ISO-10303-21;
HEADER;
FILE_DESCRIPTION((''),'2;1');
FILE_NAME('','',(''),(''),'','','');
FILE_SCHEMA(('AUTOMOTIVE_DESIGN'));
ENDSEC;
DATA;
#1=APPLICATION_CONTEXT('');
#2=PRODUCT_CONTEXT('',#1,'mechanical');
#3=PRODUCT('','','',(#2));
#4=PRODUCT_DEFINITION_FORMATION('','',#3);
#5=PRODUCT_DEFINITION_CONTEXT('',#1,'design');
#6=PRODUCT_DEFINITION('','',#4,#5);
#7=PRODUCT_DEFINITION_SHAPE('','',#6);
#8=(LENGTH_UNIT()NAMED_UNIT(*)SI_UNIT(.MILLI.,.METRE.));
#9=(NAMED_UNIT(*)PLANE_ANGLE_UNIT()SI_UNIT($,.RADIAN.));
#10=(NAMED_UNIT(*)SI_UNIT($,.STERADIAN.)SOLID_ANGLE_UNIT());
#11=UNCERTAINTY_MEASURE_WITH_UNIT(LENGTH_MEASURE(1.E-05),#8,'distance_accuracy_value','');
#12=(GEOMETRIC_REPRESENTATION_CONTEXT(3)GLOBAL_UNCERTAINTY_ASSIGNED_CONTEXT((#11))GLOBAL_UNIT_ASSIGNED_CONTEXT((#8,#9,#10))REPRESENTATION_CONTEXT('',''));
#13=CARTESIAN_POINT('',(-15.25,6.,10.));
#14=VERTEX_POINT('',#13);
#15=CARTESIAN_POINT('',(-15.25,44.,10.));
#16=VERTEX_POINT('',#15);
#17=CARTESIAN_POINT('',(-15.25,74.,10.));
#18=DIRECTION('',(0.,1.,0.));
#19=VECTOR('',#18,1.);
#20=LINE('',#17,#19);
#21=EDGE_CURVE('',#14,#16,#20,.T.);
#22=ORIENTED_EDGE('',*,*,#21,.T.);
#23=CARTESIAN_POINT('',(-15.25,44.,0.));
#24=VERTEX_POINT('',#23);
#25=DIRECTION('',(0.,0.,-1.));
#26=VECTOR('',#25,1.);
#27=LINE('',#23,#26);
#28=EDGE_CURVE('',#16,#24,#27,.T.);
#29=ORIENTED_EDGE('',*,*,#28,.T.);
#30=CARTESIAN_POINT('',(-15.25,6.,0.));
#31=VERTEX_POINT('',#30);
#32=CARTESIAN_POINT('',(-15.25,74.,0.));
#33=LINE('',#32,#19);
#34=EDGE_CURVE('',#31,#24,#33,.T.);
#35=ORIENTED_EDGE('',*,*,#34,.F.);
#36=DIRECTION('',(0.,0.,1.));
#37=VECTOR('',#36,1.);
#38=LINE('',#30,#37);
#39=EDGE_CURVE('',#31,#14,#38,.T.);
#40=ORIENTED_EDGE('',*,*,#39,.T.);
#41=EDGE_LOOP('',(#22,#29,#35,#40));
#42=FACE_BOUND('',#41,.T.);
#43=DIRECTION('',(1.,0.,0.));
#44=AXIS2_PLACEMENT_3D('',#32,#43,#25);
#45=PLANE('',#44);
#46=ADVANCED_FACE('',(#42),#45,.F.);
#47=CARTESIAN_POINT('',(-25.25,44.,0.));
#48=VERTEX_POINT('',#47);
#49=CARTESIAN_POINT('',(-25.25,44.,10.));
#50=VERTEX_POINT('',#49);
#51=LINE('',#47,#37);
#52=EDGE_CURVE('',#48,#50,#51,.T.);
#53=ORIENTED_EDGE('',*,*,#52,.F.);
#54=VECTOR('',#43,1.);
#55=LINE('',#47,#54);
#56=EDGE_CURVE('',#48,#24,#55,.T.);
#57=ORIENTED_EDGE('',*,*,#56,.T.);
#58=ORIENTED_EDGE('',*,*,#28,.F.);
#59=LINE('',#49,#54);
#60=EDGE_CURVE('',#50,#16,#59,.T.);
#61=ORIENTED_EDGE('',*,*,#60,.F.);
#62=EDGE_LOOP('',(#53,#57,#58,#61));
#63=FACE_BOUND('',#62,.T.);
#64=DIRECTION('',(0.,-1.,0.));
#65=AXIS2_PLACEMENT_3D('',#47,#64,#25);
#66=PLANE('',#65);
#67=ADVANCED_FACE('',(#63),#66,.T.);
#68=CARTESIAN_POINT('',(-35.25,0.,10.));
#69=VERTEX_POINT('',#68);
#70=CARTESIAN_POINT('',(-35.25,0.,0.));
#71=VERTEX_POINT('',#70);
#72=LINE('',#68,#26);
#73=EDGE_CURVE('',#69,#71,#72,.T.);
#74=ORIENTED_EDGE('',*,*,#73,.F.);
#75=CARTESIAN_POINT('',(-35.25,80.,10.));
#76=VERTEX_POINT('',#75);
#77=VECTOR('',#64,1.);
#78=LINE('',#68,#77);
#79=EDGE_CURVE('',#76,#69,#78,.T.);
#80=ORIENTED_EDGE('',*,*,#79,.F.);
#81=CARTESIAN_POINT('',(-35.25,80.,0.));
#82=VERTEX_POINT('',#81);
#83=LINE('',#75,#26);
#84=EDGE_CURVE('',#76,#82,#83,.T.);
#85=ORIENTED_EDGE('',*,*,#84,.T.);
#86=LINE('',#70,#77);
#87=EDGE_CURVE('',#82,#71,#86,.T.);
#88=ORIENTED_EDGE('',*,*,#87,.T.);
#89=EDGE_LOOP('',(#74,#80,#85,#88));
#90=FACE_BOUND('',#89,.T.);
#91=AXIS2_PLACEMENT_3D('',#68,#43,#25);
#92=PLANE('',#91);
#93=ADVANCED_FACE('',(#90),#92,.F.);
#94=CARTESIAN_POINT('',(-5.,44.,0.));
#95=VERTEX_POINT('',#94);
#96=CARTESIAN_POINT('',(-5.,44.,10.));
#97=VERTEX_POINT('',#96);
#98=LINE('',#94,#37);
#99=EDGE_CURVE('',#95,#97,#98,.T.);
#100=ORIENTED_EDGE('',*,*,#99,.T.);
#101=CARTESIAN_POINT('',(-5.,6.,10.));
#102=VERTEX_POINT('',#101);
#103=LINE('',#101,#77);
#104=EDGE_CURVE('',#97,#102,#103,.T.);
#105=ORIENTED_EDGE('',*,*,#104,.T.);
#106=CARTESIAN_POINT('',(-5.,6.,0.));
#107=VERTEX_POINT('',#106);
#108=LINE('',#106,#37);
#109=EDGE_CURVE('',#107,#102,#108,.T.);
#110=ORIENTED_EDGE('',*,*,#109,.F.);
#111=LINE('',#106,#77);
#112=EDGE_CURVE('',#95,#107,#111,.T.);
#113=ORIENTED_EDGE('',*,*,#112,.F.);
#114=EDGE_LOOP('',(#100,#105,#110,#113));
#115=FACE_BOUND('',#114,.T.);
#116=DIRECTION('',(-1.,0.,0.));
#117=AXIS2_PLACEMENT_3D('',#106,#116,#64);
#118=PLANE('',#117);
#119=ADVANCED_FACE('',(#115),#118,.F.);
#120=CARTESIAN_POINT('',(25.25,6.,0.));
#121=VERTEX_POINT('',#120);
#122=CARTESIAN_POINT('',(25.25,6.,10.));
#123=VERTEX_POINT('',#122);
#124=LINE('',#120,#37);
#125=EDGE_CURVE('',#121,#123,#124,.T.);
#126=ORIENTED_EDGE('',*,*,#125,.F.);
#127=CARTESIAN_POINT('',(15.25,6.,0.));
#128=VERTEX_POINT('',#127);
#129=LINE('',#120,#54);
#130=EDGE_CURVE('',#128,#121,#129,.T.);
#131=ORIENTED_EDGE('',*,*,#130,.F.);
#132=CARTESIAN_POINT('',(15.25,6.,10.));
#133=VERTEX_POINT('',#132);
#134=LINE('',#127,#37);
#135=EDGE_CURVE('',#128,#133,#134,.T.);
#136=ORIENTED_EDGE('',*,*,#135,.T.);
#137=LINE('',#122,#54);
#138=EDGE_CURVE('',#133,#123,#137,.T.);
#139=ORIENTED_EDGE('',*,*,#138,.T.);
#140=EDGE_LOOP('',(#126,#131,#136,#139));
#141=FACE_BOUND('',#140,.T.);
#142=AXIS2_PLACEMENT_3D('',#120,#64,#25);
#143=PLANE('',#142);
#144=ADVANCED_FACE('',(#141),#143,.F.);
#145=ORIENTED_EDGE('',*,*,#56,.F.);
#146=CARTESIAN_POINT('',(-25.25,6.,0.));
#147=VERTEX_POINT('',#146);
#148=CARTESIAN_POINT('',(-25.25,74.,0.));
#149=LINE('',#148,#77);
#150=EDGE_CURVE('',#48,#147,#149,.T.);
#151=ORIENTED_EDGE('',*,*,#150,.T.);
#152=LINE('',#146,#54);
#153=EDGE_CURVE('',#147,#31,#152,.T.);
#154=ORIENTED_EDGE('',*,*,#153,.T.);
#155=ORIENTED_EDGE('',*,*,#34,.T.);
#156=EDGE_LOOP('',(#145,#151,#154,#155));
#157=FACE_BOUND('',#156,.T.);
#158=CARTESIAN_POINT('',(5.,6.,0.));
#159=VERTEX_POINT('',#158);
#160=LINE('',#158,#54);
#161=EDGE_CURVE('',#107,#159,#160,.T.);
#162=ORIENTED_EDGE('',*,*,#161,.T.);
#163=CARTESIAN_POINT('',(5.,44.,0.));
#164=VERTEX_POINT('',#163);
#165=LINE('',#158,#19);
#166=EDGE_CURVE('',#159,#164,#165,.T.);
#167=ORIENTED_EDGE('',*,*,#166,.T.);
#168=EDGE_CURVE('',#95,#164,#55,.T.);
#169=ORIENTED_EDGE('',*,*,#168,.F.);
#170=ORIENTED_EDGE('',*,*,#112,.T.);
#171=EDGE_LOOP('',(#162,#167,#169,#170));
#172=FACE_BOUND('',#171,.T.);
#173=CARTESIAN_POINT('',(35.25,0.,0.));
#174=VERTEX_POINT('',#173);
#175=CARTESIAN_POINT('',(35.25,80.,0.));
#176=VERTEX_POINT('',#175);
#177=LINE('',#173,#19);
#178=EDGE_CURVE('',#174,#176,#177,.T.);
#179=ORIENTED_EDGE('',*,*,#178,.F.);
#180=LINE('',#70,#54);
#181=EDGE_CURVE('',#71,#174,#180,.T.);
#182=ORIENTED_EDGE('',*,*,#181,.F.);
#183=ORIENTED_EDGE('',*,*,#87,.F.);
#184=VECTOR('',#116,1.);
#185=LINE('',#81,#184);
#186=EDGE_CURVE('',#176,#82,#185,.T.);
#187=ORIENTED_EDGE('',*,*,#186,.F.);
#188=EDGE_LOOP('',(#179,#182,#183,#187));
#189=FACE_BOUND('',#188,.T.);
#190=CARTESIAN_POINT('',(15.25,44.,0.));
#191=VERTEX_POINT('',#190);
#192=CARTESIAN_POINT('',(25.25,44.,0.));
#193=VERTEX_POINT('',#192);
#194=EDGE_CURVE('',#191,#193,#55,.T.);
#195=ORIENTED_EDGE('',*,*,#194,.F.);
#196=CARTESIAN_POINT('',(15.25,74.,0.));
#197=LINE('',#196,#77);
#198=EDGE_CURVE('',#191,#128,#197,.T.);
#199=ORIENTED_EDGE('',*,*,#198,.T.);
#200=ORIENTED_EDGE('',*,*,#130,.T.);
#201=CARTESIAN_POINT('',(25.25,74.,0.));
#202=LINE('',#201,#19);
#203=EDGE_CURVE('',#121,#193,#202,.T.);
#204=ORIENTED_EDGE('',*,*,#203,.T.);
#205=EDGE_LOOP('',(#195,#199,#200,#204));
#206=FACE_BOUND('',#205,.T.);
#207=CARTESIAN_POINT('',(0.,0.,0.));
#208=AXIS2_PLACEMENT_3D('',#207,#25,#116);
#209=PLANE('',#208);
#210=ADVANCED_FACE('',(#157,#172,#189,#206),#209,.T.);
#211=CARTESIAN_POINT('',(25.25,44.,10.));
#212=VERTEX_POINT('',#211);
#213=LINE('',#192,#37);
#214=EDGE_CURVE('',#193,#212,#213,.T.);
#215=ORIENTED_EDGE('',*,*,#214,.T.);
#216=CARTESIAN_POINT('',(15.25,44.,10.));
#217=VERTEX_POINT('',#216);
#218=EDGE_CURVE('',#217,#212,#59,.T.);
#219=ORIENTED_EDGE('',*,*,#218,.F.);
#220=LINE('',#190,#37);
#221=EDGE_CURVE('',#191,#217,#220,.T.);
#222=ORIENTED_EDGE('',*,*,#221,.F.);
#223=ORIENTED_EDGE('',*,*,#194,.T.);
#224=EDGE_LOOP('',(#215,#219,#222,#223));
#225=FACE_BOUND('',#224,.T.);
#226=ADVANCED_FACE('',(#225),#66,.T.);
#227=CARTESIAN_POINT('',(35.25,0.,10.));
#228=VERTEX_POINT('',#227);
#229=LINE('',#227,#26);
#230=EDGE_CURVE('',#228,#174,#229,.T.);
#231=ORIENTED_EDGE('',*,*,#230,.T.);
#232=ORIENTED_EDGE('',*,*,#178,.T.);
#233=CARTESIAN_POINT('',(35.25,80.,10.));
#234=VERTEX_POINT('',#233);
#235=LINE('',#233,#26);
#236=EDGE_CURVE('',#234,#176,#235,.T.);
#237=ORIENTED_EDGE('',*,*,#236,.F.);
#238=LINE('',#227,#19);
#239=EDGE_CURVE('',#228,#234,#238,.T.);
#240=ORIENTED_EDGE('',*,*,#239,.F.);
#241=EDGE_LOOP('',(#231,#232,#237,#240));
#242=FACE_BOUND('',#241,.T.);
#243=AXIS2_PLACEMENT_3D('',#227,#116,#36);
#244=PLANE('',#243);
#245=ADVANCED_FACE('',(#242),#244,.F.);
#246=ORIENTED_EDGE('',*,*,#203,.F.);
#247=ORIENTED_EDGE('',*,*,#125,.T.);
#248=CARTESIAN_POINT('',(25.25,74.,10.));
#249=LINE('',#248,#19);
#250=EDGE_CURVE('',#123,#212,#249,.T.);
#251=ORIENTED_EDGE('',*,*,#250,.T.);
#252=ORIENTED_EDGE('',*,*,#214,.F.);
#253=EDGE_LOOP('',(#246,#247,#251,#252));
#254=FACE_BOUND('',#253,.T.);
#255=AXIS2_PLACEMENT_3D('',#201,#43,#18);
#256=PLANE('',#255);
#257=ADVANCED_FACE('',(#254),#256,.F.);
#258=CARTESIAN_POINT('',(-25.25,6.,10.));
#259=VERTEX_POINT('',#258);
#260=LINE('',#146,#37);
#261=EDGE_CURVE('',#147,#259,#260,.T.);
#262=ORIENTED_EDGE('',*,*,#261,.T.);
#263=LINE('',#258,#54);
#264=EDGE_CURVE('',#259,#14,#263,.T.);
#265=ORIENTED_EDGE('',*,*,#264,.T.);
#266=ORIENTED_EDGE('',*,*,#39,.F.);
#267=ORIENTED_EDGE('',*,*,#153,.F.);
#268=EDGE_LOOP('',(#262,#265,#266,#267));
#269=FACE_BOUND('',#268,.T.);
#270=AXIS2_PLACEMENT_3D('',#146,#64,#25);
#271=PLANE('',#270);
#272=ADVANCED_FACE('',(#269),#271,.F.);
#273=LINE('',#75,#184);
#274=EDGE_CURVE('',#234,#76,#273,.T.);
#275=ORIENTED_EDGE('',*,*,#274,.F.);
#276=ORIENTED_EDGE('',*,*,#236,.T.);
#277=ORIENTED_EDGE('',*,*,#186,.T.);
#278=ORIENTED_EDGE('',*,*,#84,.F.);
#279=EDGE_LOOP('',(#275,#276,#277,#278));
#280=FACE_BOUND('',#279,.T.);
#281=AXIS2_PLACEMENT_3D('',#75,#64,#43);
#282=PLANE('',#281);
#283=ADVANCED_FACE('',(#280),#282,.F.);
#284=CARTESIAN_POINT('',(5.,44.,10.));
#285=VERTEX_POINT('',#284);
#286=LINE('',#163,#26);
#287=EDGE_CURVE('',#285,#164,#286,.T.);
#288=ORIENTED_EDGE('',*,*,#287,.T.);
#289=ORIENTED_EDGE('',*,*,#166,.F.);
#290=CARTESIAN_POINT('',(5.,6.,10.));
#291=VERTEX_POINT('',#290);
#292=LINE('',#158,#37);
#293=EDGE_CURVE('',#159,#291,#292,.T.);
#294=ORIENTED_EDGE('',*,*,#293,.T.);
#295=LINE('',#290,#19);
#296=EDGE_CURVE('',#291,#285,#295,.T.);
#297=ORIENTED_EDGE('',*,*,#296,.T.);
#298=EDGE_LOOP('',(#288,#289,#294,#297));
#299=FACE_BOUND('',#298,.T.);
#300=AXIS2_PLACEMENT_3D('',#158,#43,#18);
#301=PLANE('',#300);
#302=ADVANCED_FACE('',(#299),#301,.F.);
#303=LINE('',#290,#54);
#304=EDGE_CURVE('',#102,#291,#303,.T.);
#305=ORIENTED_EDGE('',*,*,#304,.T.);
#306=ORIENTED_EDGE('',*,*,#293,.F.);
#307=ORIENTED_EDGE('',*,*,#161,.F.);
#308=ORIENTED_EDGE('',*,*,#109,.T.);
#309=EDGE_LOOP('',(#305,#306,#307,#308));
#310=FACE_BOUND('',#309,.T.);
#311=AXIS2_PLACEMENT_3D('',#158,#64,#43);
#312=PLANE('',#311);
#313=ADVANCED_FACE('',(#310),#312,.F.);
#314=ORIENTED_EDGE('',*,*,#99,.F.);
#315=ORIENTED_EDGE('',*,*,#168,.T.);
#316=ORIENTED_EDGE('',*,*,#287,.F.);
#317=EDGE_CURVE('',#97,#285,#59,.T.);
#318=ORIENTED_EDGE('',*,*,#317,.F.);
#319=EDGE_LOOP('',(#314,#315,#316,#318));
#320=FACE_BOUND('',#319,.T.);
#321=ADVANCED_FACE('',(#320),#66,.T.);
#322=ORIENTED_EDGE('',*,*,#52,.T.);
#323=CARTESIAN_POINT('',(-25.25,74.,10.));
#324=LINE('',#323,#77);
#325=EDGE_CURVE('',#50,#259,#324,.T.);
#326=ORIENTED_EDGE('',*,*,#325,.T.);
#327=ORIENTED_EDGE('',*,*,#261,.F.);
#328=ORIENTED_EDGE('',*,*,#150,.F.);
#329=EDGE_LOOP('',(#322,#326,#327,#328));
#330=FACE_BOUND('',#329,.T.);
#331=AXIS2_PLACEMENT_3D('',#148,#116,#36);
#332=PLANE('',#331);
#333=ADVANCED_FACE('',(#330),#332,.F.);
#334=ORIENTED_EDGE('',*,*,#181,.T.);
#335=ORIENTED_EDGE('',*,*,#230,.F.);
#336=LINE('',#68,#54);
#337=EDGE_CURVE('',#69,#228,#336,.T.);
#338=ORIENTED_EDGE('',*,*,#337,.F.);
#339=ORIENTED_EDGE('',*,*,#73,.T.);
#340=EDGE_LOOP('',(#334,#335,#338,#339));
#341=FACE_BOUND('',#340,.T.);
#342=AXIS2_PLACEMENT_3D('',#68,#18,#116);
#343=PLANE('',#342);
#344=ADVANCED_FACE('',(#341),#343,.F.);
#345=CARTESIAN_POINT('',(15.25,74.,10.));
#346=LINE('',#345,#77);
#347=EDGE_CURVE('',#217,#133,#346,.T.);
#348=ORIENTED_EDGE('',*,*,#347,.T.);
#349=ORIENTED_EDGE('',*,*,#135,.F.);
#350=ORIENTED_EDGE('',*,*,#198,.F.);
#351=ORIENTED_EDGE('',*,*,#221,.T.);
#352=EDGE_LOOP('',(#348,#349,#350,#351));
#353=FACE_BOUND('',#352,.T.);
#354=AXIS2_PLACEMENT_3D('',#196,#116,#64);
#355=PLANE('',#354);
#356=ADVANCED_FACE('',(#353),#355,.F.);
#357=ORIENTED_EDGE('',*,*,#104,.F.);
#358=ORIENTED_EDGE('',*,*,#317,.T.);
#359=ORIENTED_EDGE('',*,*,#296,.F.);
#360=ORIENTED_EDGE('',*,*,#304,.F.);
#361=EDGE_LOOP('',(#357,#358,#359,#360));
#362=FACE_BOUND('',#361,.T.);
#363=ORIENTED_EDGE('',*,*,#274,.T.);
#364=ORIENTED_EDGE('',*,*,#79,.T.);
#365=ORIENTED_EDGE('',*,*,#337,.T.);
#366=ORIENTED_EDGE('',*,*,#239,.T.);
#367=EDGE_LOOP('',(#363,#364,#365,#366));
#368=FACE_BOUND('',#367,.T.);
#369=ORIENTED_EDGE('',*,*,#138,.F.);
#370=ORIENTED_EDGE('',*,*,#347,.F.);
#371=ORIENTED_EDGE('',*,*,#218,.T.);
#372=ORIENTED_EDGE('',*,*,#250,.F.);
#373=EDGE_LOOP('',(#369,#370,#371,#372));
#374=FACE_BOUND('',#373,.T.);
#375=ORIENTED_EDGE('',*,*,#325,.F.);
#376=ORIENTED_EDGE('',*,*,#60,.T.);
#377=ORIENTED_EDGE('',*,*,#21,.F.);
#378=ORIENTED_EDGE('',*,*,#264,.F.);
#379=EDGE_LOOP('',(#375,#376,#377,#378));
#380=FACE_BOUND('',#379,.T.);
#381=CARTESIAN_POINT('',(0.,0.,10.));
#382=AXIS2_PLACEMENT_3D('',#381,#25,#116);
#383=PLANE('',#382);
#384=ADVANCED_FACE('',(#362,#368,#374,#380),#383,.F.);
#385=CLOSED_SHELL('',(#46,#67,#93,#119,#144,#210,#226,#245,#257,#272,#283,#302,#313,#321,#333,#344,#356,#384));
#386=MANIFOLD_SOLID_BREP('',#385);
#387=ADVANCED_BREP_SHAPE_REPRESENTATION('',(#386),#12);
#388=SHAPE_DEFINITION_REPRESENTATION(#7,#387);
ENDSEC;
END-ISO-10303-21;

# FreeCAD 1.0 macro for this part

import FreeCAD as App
import Part
import Sketcher
from FreeCAD import Vector

doc = App.newDocument("Part")
body = doc.addObject("PartDesign::Body", "Body")

# Sketch on XY plane
sketch1 = doc.addObject("Sketcher::SketchObject", "Sketch")
body.addObject(sketch1)
sketch1.AttachmentSupport = (doc.XY_Plane, [""])
sketch1.MapMode = "FlatFace"
sketch1.addGeometry([
    Part.LineSegment(Vector(-35, 80, 0), Vector(-35, 0, 0)),
    Part.LineSegment(Vector(-35, 0, 0), Vector(35, 0, 0)),
    Part.LineSegment(Vector(35, 0, 0), Vector(35, 80, 0)),
    Part.LineSegment(Vector(35, 80, 0), Vector(-35, 80, 0)),
], False)
sketch1.addConstraint([
    Sketcher.Constraint("Coincident", 0, 2, 1, 1),
    Sketcher.Constraint("Coincident", 1, 2, 2, 1),
    Sketcher.Constraint("Coincident", 2, 2, 3, 1),
    Sketcher.Constraint("Coincident", 3, 2, 0, 1),
    Sketcher.Constraint("Vertical", 0),
    Sketcher.Constraint("Horizontal", 1),
    Sketcher.Constraint("Vertical", 2),
    Sketcher.Constraint("Horizontal", 3),
    Sketcher.Constraint("Symmetric", 0, 2, 1, 2, -1, 1),
    Sketcher.Constraint("DistanceY", 0, 2, 0, 1, 80.0),
    Sketcher.Constraint("DistanceX", 1, 1, 1, 2, 70.5),
])
pad1 = doc.addObject("PartDesign::Pad", "Pad")
body.addObject(pad1)
pad1.Profile = sketch1
pad1.Length = 10

# Sketch on XY plane
sketch2 = doc.addObject("Sketcher::SketchObject", "Sketch001")
body.addObject(sketch2)
sketch2.AttachmentSupport = (doc.XY_Plane, [""])
sketch2.MapMode = "FlatFace"
sketch2.AttachmentOffset = App.Placement(Vector(0, 0, 10), App.Rotation())
sketch2.addGeometry([
    Part.LineSegment(Vector(15, 74, 0), Vector(15, 6, 0)),  # 0
    Part.LineSegment(Vector(15, 6, 0), Vector(25, 6, 0)),  # 1
    Part.LineSegment(Vector(25, 6, 0), Vector(25, 74, 0)),  # 2
    Part.LineSegment(Vector(25, 74, 0), Vector(15, 74, 0)),  # 3
    Part.LineSegment(Vector(-25, 74, 0), Vector(-25, 6, 0)),  # 4
    Part.LineSegment(Vector(-25, 6, 0), Vector(-15, 6, 0)),  # 5
    Part.LineSegment(Vector(-15, 6, 0), Vector(-15, 74, 0)),  # 6
    Part.LineSegment(Vector(-15, 74, 0), Vector(-25, 74, 0)),  # 7
    Part.LineSegment(Vector(-5, 74, 0), Vector(-5, 6, 0)),  # 8
    Part.LineSegment(Vector(-5, 6, 0), Vector(5, 6, 0)),  # 9
    Part.LineSegment(Vector(5, 6, 0), Vector(5, 74, 0)),  # 10
    Part.LineSegment(Vector(5, 74, 0), Vector(-5, 74, 0)),  # 11
], False)
sketch2.addConstraint([
    Sketcher.Constraint("Coincident", 0, 2, 1, 1),
    Sketcher.Constraint("Coincident", 1, 2, 2, 1),
    Sketcher.Constraint("Coincident", 2, 2, 3, 1),
    Sketcher.Constraint("Coincident", 3, 2, 0, 1),
    Sketcher.Constraint("Coincident", 4, 2, 5, 1),
    Sketcher.Constraint("Coincident", 5, 2, 6, 1),
    Sketcher.Constraint("Coincident", 6, 2, 7, 1),
    Sketcher.Constraint("Coincident", 7, 2, 4, 1),
    Sketcher.Constraint("Coincident", 8, 2, 9, 1),
    Sketcher.Constraint("Coincident", 9, 2, 10, 1),
    Sketcher.Constraint("Coincident", 10, 2, 11, 1),
    Sketcher.Constraint("Coincident", 11, 2, 8, 1),
    Sketcher.Constraint("Vertical", 0),
    Sketcher.Constraint("Horizontal", 1),
    Sketcher.Constraint("Vertical", 2),
    Sketcher.Constraint("Horizontal", 3),
    Sketcher.Constraint("Vertical", 4),
    Sketcher.Constraint("Horizontal", 5),
    Sketcher.Constraint("Vertical", 6),
    Sketcher.Constraint("Horizontal", 7),
    Sketcher.Constraint("Vertical", 8),
    Sketcher.Constraint("Horizontal", 9),
    Sketcher.Constraint("Vertical", 10),
    Sketcher.Constraint("Horizontal", 11),
    Sketcher.Constraint("Symmetric", 1, 2, 4, 2, -2),
    Sketcher.Constraint("Symmetric", 3, 2, 6, 2, -2),
    Sketcher.Constraint("Horizontal", 5, 2, 8, 2),
    Sketcher.Constraint("Horizontal", 7, 2, 10, 2),
    Sketcher.Constraint("Equal", 7, 9),
    Sketcher.Constraint("DistanceX", 1, 1, 1, 2, 10.0),
    Sketcher.Constraint("DistanceY", 0, 2, 0, 1, 68.0),
    Sketcher.Constraint("DistanceY", -1, 1, 0, 2, 6.0),
    Sketcher.Constraint("DistanceX", 8, 2, -1, 1, 5.0),
    Sketcher.Constraint("DistanceX", 4, 2, 0, 2, 40.5),
])
pocket1 = doc.addObject("PartDesign::Pocket", "Pocket")
body.addObject(pocket1)
pocket1.Profile = sketch2
pocket1.Length = 10

# Sketch on XY plane
sketch3 = doc.addObject("Sketcher::SketchObject", "Sketch002")
body.addObject(sketch3)
sketch3.AttachmentSupport = (doc.XY_Plane, [""])
sketch3.MapMode = "FlatFace"
sketch3.AttachmentOffset = App.Placement(Vector(0, 0, 10), App.Rotation())
sketch3.addGeometry([
    Part.LineSegment(Vector(-25, 74, 0), Vector(-25, 44, 0)),
    Part.LineSegment(Vector(-25, 44, 0), Vector(25, 44, 0)),
    Part.LineSegment(Vector(25, 44, 0), Vector(25, 74, 0)),
    Part.LineSegment(Vector(25, 74, 0), Vector(-25, 74, 0)),
], False)
sketch3.addConstraint([
    Sketcher.Constraint("Coincident", 0, 2, 1, 1),
    Sketcher.Constraint("Coincident", 1, 2, 2, 1),
    Sketcher.Constraint("Coincident", 2, 2, 3, 1),
    Sketcher.Constraint("Coincident", 3, 2, 0, 1),
    Sketcher.Constraint("Vertical", 0),
    Sketcher.Constraint("Horizontal", 1),
    Sketcher.Constraint("Vertical", 2),
    Sketcher.Constraint("Horizontal", 3),
    Sketcher.Constraint("DistanceY", 0, 2, 0, 1, 30.0),
    Sketcher.Constraint("DistanceX", 1, 1, 1, 2, 50.5),
    Sketcher.Constraint("DistanceY", -1, 1, 0, 2, 44.0),
    Sketcher.Constraint("DistanceX", 0, 2, -1, 1, 25.25),
])
pad2 = doc.addObject("PartDesign::Pad", "Pad001")
body.addObject(pad2)
pad2.Profile = sketch3
pad2.Length = 10
pad2.Reversed = True

doc.recompute()
